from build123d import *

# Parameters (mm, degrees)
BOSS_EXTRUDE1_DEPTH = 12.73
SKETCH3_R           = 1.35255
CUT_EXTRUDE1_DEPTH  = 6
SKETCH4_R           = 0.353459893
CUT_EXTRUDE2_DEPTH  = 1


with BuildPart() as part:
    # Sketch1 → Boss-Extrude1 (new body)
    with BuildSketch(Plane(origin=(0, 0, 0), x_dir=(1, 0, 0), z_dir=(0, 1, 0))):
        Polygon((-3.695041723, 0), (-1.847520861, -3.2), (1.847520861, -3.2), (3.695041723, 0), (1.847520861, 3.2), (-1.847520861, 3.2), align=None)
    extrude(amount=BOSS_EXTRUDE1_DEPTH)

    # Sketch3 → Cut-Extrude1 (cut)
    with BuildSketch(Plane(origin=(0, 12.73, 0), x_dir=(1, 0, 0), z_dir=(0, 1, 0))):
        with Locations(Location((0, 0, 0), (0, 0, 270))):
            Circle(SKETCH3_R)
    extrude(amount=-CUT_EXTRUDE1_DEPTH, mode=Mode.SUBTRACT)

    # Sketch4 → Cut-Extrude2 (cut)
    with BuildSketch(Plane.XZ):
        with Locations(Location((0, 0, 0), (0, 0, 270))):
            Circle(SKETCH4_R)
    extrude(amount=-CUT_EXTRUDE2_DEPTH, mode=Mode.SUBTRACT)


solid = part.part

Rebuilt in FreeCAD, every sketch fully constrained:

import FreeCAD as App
import Part
import Sketcher
Q = App.Units.Quantity

doc = App.newDocument("Part")
body = doc.addObject("PartDesign::Body", "Body")

sketch1 = doc.addObject("Sketcher::SketchObject", "Sketch")
body.addObject(sketch1)
sketch1.AttachmentSupport = (doc.XZ_Plane, [""])
sketch1.MapMode = "FlatFace"
sketch1.addGeometry(Part.LineSegment(App.Vector(-3.7, 0, 0), App.Vector(-1.8, 3.2, 0)), False)
sketch1.addGeometry(Part.LineSegment(App.Vector(-1.8, 3.2, 0), App.Vector(1.8, 3.2, 0)), False)
sketch1.addGeometry(Part.LineSegment(App.Vector(1.8, 3.2, 0), App.Vector(3.7, 0, 0)), False)
sketch1.addGeometry(Part.LineSegment(App.Vector(3.7, 0, 0), App.Vector(1.8, -3.2, 0)), False)
sketch1.addGeometry(Part.LineSegment(App.Vector(1.8, -3.2, 0), App.Vector(-1.8, -3.2, 0)), False)
sketch1.addGeometry(Part.LineSegment(App.Vector(-1.8, -3.2, 0), App.Vector(-3.7, 0, 0)), False)
sketch1.addConstraint(Sketcher.Constraint("Coincident", 0, 2, 1, 1))
sketch1.addConstraint(Sketcher.Constraint("Coincident", 1, 2, 2, 1))
sketch1.addConstraint(Sketcher.Constraint("Coincident", 2, 2, 3, 1))
sketch1.addConstraint(Sketcher.Constraint("Coincident", 3, 2, 4, 1))
sketch1.addConstraint(Sketcher.Constraint("Coincident", 4, 2, 5, 1))
sketch1.addConstraint(Sketcher.Constraint("Coincident", 5, 2, 0, 1))
sketch1.addConstraint(Sketcher.Constraint("Horizontal", 1))
sketch1.addConstraint(Sketcher.Constraint("Horizontal", 4))
sketch1.addConstraint(Sketcher.Constraint("Symmetric", 0, 2, 3, 2, -1, 1))
sketch1.addConstraint(Sketcher.Constraint("Symmetric", 2, 2, 5, 2, -1, 1))
sketch1.addConstraint(Sketcher.Constraint("PointOnObject", 2, 2, -1))
sketch1.addConstraint(Sketcher.Constraint("Parallel", 2, 5))
sketch1.addConstraint(Sketcher.Constraint("Vertical", 1, 2, 3, 2))
sketch1.addConstraint(Sketcher.Constraint("Angle", 0, Q("60 deg")))
sketch1.addConstraint(Sketcher.Constraint("DistanceY", -1, 1, 0, 2, Q("3.2 mm")))
sketch1.addConstraint(Sketcher.Constraint("DistanceX", 1, 1, 1, 2, Q("3.695042 mm")))
pad1 = doc.addObject("PartDesign::Pad", "Pad")
body.addObject(pad1)
pad1.Profile = sketch1
pad1.Length = 12.73
pad1.Reversed = True

sketch2 = doc.addObject("Sketcher::SketchObject", "Sketch001")
body.addObject(sketch2)
sketch2.AttachmentSupport = (doc.XZ_Plane, [""])
sketch2.MapMode = "FlatFace"
sketch2.AttachmentOffset = App.Placement(App.Vector(0, 0, -12.73), App.Rotation())
sketch2.addGeometry(Part.Circle(App.Vector(0, 0, 0), App.Vector(0, 0, 1), 1.4), False)
sketch2.addConstraint(Sketcher.Constraint("Coincident", 0, 3, -1, 1))
sketch2.addConstraint(Sketcher.Constraint("Diameter", 0, Q("2.7051 mm")))
pocket1 = doc.addObject("PartDesign::Pocket", "Pocket")
body.addObject(pocket1)
pocket1.Profile = sketch2
pocket1.Length = 6
pocket1.Reversed = True

sketch3 = doc.addObject("Sketcher::SketchObject", "Sketch002")
body.addObject(sketch3)
sketch3.AttachmentSupport = (doc.XZ_Plane, [""])
sketch3.MapMode = "FlatFace"
sketch3.addGeometry(Part.Circle(App.Vector(0, 0, 0), App.Vector(0, 0, 1), 0.35), False)
sketch3.addConstraint(Sketcher.Constraint("Coincident", 0, 3, -1, 1))
sketch3.addConstraint(Sketcher.Constraint("Diameter", 0, Q("0.70692 mm")))
pocket2 = doc.addObject("PartDesign::Pocket", "Pocket001")
body.addObject(pocket2)
pocket2.Profile = sketch3
pocket2.Length = 1

doc.recompute()
